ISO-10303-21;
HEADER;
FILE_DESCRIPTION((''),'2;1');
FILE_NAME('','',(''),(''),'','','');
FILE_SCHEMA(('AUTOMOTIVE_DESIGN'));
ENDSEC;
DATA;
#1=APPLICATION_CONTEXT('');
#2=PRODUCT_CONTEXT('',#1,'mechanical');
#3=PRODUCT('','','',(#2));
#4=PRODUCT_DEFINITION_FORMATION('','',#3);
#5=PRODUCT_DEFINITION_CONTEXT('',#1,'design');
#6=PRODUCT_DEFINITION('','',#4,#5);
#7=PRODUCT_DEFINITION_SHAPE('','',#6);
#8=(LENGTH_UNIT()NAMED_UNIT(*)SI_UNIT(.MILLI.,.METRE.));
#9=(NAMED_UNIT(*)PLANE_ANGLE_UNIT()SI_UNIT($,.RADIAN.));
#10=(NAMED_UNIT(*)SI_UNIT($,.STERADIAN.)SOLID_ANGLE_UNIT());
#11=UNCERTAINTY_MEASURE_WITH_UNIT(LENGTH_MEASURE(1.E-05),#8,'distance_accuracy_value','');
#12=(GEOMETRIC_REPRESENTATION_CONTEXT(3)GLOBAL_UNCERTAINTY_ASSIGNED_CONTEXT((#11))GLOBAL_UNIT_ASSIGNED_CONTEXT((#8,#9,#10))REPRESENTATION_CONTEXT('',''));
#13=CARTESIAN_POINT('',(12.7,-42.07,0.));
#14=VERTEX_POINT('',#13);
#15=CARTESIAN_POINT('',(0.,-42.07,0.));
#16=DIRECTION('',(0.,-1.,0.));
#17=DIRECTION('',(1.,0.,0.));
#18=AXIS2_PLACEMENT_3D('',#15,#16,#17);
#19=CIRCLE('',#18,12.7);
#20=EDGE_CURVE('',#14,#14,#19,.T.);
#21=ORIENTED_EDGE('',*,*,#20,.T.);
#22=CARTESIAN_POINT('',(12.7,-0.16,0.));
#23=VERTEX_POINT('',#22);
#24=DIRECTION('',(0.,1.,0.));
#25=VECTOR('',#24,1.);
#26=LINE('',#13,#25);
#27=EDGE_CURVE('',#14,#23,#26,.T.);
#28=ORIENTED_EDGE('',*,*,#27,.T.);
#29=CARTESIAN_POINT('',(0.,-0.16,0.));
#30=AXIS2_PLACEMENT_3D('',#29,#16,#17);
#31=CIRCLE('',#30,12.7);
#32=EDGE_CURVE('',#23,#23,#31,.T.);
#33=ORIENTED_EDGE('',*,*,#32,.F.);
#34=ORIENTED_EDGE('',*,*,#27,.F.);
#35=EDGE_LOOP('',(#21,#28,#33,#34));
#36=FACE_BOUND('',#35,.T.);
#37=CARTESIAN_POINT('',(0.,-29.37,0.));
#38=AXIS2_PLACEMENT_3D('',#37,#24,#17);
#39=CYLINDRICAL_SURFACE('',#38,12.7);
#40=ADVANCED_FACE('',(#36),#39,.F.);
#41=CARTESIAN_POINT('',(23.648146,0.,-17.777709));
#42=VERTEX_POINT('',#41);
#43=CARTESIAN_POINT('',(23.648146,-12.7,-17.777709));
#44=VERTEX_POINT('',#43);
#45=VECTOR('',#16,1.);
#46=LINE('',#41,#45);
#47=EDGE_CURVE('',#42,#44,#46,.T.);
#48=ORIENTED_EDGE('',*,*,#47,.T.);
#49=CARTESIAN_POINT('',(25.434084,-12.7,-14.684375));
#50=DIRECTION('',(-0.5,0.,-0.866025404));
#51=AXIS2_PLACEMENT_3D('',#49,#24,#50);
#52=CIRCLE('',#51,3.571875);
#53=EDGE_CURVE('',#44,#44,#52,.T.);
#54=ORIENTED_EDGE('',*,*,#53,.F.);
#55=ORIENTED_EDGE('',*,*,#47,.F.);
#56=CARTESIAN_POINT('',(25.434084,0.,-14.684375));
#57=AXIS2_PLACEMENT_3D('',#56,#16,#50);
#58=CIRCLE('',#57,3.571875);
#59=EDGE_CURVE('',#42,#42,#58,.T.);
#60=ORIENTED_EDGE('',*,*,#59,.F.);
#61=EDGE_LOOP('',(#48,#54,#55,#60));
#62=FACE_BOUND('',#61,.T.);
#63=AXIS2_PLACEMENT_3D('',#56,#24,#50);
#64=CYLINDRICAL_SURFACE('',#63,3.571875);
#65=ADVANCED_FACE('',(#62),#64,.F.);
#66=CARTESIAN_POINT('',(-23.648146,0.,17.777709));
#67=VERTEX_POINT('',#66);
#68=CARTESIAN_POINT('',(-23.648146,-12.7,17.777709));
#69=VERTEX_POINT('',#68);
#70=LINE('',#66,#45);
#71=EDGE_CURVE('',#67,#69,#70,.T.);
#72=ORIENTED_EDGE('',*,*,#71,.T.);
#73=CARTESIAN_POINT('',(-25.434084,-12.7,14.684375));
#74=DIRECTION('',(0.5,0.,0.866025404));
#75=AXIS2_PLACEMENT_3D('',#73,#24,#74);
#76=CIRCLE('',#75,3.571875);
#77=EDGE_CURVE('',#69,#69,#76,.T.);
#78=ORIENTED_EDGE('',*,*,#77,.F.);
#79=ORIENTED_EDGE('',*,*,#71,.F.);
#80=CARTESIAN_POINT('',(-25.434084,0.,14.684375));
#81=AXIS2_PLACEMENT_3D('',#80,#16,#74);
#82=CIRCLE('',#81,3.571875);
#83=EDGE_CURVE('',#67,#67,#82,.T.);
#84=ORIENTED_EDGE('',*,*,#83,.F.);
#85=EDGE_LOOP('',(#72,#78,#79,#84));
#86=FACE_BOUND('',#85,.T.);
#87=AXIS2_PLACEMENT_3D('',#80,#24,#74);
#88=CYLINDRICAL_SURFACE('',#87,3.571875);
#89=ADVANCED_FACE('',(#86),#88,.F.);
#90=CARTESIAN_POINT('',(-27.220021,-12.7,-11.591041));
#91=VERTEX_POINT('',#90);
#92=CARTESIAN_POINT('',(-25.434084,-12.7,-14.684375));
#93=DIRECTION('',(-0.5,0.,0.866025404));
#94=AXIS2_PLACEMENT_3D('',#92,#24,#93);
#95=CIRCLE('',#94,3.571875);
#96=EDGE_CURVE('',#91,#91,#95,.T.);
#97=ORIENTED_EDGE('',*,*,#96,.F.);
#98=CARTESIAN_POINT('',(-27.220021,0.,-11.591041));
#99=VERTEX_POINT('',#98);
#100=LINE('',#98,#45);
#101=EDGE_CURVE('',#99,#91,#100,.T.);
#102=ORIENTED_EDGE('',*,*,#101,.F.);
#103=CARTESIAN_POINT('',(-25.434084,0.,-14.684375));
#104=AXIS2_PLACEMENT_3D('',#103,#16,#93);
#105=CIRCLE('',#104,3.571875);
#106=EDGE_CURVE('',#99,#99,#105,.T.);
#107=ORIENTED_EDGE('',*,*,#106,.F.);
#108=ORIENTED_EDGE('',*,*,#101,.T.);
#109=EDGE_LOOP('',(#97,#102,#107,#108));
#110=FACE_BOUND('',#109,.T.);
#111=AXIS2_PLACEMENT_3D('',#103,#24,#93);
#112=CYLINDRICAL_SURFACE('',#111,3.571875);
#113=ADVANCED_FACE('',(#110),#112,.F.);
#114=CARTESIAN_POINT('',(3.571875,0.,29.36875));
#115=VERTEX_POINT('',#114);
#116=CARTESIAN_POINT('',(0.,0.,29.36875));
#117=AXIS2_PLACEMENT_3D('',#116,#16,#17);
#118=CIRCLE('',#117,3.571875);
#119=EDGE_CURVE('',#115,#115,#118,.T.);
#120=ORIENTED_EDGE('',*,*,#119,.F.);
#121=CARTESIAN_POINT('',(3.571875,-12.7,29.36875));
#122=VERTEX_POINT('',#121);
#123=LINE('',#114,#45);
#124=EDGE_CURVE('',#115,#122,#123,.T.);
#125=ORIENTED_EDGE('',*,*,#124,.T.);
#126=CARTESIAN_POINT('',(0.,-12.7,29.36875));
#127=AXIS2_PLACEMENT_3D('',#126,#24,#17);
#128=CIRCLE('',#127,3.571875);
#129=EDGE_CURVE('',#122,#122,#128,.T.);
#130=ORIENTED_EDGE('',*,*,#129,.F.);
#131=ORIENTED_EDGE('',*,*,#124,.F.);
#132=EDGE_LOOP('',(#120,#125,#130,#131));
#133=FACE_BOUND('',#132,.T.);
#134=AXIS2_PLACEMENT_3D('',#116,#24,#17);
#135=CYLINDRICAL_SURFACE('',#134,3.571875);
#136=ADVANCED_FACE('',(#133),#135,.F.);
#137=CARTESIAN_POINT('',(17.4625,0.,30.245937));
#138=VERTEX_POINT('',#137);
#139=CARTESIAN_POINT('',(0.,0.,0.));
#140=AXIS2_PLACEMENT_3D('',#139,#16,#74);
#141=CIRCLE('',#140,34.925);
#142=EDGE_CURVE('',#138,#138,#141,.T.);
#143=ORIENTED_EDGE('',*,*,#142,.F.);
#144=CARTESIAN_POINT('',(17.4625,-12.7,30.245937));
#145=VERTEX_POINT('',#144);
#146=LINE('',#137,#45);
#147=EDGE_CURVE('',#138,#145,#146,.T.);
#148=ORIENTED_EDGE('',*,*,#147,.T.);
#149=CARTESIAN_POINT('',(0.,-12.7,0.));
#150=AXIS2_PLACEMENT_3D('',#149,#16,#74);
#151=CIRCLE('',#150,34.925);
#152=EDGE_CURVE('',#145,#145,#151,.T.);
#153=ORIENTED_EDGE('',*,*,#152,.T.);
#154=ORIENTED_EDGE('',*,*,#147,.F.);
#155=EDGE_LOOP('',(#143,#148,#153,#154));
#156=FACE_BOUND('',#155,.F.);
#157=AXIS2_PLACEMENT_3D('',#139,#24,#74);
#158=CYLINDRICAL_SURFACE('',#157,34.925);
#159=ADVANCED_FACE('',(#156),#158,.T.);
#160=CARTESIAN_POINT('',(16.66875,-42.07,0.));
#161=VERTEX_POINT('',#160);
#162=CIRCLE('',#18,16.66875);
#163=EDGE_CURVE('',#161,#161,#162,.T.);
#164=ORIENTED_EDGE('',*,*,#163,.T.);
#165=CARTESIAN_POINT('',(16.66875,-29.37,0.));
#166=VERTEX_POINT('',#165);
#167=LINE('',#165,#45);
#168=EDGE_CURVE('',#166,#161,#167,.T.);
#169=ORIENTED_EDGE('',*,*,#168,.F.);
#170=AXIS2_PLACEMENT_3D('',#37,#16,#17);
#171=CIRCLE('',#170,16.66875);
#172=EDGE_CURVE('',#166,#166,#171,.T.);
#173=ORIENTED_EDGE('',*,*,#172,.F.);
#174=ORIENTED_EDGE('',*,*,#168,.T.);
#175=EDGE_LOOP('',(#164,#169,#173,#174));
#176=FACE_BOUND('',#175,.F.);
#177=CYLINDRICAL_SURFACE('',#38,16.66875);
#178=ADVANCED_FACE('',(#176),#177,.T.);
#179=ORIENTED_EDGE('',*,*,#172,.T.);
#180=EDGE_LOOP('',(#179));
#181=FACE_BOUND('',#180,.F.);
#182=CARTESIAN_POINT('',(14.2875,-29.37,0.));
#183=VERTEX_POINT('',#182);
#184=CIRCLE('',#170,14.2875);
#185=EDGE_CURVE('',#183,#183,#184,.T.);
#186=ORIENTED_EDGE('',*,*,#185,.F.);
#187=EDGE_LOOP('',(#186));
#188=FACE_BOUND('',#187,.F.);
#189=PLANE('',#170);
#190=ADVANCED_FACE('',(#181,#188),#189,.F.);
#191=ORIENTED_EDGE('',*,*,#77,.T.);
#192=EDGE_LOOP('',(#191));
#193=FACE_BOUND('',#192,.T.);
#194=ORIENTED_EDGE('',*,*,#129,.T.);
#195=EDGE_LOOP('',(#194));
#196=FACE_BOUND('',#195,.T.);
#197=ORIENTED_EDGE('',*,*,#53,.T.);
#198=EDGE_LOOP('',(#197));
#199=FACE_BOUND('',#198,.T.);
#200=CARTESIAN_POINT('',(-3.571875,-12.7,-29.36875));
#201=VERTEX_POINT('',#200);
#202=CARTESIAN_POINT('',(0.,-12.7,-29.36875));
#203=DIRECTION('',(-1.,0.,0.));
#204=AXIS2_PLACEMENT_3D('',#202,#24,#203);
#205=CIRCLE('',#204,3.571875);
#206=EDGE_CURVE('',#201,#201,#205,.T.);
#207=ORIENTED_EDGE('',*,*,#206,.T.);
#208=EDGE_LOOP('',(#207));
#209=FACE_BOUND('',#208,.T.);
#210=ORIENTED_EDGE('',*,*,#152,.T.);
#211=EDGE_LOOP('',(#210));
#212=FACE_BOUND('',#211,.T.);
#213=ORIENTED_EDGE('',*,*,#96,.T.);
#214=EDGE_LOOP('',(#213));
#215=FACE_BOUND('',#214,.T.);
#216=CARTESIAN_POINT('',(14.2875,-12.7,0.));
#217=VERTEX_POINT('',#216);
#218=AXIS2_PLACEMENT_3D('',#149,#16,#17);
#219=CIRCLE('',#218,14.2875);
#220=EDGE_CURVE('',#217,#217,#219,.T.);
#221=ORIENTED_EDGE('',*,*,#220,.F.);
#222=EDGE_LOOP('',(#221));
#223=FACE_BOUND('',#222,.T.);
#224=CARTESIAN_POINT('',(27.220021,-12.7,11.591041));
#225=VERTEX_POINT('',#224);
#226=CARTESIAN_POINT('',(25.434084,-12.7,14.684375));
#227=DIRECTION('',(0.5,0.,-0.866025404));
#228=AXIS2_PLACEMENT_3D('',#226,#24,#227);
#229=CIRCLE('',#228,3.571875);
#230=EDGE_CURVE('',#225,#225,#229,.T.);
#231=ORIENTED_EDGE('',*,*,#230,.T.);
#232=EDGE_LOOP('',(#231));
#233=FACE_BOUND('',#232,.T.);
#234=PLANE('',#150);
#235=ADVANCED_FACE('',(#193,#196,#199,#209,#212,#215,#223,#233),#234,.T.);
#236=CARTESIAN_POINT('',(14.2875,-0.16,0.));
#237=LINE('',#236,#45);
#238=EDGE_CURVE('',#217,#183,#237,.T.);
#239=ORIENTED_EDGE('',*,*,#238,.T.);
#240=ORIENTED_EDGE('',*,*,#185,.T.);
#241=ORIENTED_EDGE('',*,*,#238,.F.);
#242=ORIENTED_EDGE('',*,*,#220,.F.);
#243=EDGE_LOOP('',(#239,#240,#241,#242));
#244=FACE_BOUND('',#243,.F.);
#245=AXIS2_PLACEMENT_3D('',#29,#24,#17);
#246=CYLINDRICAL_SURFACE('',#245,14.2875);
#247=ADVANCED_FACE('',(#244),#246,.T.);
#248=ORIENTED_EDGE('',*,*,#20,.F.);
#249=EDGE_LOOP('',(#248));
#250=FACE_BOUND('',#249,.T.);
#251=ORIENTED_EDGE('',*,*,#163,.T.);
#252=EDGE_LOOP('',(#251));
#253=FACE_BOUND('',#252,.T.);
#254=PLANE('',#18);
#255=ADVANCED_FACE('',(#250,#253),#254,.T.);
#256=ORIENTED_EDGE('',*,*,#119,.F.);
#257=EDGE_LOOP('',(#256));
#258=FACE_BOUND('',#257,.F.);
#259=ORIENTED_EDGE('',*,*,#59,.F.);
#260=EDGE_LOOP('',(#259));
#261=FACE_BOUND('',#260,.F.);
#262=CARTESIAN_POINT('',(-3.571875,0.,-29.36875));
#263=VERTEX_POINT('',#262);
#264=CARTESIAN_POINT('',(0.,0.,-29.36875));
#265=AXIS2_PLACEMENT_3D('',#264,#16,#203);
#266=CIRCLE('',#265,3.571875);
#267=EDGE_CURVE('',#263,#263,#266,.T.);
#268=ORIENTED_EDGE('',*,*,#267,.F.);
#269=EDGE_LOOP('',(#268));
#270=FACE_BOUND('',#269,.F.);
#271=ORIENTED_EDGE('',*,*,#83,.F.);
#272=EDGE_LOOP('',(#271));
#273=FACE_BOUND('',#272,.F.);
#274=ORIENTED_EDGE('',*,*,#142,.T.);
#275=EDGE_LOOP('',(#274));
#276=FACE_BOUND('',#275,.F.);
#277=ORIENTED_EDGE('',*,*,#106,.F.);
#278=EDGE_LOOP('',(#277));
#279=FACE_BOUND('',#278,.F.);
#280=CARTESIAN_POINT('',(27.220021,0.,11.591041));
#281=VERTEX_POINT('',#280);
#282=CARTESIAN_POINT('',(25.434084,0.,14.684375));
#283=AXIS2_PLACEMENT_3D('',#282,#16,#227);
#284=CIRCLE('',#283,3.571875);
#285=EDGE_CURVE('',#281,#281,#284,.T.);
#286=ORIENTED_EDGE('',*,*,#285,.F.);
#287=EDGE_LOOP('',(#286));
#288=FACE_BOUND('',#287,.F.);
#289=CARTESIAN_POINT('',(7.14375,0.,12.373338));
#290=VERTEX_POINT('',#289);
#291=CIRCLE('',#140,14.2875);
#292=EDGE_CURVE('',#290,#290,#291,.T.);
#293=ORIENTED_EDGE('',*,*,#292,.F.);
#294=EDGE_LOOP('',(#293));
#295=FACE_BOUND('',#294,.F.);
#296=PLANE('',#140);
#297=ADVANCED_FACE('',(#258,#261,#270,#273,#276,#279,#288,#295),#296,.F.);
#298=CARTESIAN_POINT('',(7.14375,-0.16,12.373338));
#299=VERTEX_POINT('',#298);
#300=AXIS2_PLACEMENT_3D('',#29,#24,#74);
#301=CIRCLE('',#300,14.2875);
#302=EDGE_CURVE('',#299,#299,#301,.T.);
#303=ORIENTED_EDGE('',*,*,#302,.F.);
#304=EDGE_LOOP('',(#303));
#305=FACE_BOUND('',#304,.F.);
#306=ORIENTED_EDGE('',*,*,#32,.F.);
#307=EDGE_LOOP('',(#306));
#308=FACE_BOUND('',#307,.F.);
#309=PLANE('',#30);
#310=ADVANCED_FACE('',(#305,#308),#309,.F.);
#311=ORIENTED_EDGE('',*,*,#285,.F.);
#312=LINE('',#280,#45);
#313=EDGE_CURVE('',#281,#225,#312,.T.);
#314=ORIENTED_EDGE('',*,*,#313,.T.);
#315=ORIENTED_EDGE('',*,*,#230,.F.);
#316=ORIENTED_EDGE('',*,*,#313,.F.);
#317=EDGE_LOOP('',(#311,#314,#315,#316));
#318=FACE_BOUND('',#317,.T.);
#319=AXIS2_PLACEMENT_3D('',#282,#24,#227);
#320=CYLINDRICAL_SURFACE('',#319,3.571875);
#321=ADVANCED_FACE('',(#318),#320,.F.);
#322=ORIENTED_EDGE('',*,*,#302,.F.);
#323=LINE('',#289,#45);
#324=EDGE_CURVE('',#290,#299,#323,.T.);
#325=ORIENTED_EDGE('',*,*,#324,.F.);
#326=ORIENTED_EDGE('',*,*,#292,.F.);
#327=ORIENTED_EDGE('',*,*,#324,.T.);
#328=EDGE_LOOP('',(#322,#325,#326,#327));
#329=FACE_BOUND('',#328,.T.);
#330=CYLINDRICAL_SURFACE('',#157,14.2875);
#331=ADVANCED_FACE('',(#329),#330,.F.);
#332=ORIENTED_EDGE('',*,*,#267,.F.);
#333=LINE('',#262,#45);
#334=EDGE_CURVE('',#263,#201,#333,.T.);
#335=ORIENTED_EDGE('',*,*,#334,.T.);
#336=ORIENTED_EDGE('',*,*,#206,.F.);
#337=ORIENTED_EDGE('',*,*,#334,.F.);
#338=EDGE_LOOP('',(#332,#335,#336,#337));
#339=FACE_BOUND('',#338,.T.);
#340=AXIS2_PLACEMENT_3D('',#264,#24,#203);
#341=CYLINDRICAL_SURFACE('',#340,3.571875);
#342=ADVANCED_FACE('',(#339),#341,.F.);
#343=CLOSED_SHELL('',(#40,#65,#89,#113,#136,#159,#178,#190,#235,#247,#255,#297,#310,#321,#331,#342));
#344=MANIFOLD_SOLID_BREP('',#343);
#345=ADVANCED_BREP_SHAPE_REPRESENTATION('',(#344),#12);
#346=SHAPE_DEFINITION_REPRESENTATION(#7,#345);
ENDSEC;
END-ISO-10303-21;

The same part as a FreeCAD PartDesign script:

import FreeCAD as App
import Part
import Sketcher
from FreeCAD import Vector
Q = App.Units.Quantity

doc = App.newDocument("Part")
body = doc.addObject("PartDesign::Body", "Body")

sketch1 = body.newObject("Sketcher::SketchObject", "Sketch")
sketch1.AttachmentSupport = (doc.getObject("XZ_Plane"), [""])
sketch1.MapMode = "FlatFace"
sketch1.addGeometry(Part.Circle(Vector(0, 0, 0), Vector(0, 0, 1), 14), False)
sketch1.addGeometry(Part.Circle(Vector(0, 0, 0), Vector(0, 0, 1), 13), False)
sketch1.addConstraint(Sketcher.Constraint("Coincident", 0, 3, -1, 1))
sketch1.addConstraint(Sketcher.Constraint("Coincident", 1, 3, -1, 1))
sketch1.addConstraint(Sketcher.Constraint("Diameter", 1, Q("1 in")))
sketch1.addConstraint(Sketcher.Constraint("Diameter", 0, Q("1.125 in")))
pad1 = body.newObject("PartDesign::Pad", "Pad")
pad1.Profile = sketch1
pad1.Length = Q("1.15 in")
body2 = doc.addObject("PartDesign::Body", "Body001")
doc.recompute()

body.Placement = App.Placement(Vector(0, -0.16, 0), App.Rotation(Vector(0, 0, 1), 0))
boolean = body2.newObject("PartDesign::Boolean", "Boolean")
boolean.Type = "Fuse"
boolean.addObjects([body])
body3 = doc.addObject("PartDesign::Body", "Body002")

sketch2 = body3.newObject("Sketcher::SketchObject", "Sketch001")
sketch2.AttachmentSupport = (doc.getObject("XZ_Plane002"), [""])
sketch2.MapMode = "FlatFace"
sketch2.addGeometry(Part.Circle(Vector(0, 0, 0), Vector(0, 0, 1), 17), False)
sketch2.addGeometry(Part.Circle(Vector(0, 0, 0), Vector(0, 0, 1), 13), False)
sketch2.addConstraint(Sketcher.Constraint("Coincident", 0, 3, -1, 1))
sketch2.addConstraint(Sketcher.Constraint("Coincident", 1, 3, -1, 1))
sketch2.addConstraint(Sketcher.Constraint("Diameter", 1, Q("1 in")))
sketch2.addConstraint(Sketcher.Constraint("Diameter", 0, Q("1.3125 in")))
pad2 = body3.newObject("PartDesign::Pad", "Pad001")
pad2.Profile = sketch2
pad2.Length = Q("0.5 in")
body4 = doc.addObject("PartDesign::Body", "Body003")
doc.recompute()

body3.Placement = App.Placement(Vector(0, -29.37, 0), App.Rotation(Vector(0, 0, 1), 0))
boolean2 = body4.newObject("PartDesign::Boolean", "Boolean001")
boolean2.Type = "Fuse"
boolean2.addObjects([body3])
body5 = doc.addObject("PartDesign::Body", "Body004")

sketch3 = body5.newObject("Sketcher::SketchObject", "Sketch002")
sketch3.AttachmentSupport = (doc.getObject("XZ_Plane004"), [""])
sketch3.MapMode = "FlatFace"
sketch3.addGeometry(Part.Circle(Vector(0, 29.4, 0), Vector(0, 0, 1), 3.6), False)
sketch3.addConstraint(Sketcher.Constraint("PointOnObject", 0, 3, -2))
sketch3.addConstraint(Sketcher.Constraint("Diameter", 0, Q("0.28125 in")))
sketch3.addConstraint(Sketcher.Constraint("DistanceY", -1, 1, 0, 3, Q("1.15625 in")))
pad3 = body5.newObject("PartDesign::Pad", "Pad002")
pad3.Profile = sketch3
pad3.Length = 13
body6 = doc.addObject("PartDesign::Body", "Body005")

sketch4 = body6.newObject("Sketcher::SketchObject", "Sketch003")
sketch4.AttachmentSupport = (doc.getObject("XZ_Plane005"), [""])
sketch4.MapMode = "FlatFace"
sketch4.addGeometry(Part.Circle(Vector(0, 0, 0), Vector(0, 0, 1), 35), False)
sketch4.addGeometry(Part.Circle(Vector(0, 0, 0), Vector(0, 0, 1), 14), False)
sketch4.addConstraint(Sketcher.Constraint("Coincident", 0, 3, -1, 1))
sketch4.addConstraint(Sketcher.Constraint("Coincident", 1, 3, -1, 1))
sketch4.addConstraint(Sketcher.Constraint("Diameter", 0, Q("2.75 in")))
sketch4.addConstraint(Sketcher.Constraint("Diameter", 1, Q("1.125 in")))
pad4 = body6.newObject("PartDesign::Pad", "Pad003")
pad4.Profile = sketch4
pad4.Length = Q("0.5 in")
doc.recompute()

body7 = doc.addObject("PartDesign::Body", "Body006")
body7.BaseFeature = body5
boolean3 = body6.newObject("PartDesign::Boolean", "Boolean002")
boolean3.Type = "Cut"
boolean3.addObjects([body7])
doc.recompute()
body8 = doc.addObject("PartDesign::Body", "Body007")
doc.recompute()

body6.Placement = App.Placement(Vector(0, 0, 0), App.Rotation(Vector(0, 1, 0), 60))
boolean4 = body8.newObject("PartDesign::Boolean", "Boolean003")
boolean4.Type = "Fuse"
boolean4.addObjects([body6])
doc.recompute()

body9 = doc.addObject("PartDesign::Body", "Body008")
body9.BaseFeature = body5
boolean5 = body8.newObject("PartDesign::Boolean", "Boolean004")
boolean5.Type = "Cut"
boolean5.addObjects([body9])
doc.recompute()
body10 = doc.addObject("PartDesign::Body", "Body009")
doc.recompute()

body8.Placement = App.Placement(Vector(0, 0, 0), App.Rotation(Vector(0, 1, 0), 60))
boolean6 = body10.newObject("PartDesign::Boolean", "Boolean005")
boolean6.Type = "Fuse"
boolean6.addObjects([body8])
doc.recompute()

body11 = doc.addObject("PartDesign::Body", "Body010")
body11.BaseFeature = body5
boolean7 = body10.newObject("PartDesign::Boolean", "Boolean006")
boolean7.Type = "Cut"
boolean7.addObjects([body11])
doc.recompute()
body12 = doc.addObject("PartDesign::Body", "Body011")
doc.recompute()

body10.Placement = App.Placement(Vector(0, 0, 0), App.Rotation(Vector(0, 1, 0), 60))
boolean8 = body12.newObject("PartDesign::Boolean", "Boolean007")
boolean8.Type = "Fuse"
boolean8.addObjects([body10])
doc.recompute()

body13 = doc.addObject("PartDesign::Body", "Body012")
body13.BaseFeature = body5
boolean9 = body12.newObject("PartDesign::Boolean", "Boolean008")
boolean9.Type = "Cut"
boolean9.addObjects([body13])
doc.recompute()
body14 = doc.addObject("PartDesign::Body", "Body013")
doc.recompute()

body12.Placement = App.Placement(Vector(0, 0, 0), App.Rotation(Vector(0, 1, 0), 60))
boolean10 = body14.newObject("PartDesign::Boolean", "Boolean009")
boolean10.Type = "Fuse"
boolean10.addObjects([body12])
doc.recompute()

body15 = doc.addObject("PartDesign::Body", "Body014")
body15.BaseFeature = body5
boolean11 = body14.newObject("PartDesign::Boolean", "Boolean010")
boolean11.Type = "Cut"
boolean11.addObjects([body15])
doc.recompute()
body16 = doc.addObject("PartDesign::Body", "Body015")
doc.recompute()

body14.Placement = App.Placement(Vector(0, 0, 0), App.Rotation(Vector(0, 1, 0), 60))
boolean12 = body16.newObject("PartDesign::Boolean", "Boolean011")
boolean12.Type = "Fuse"
boolean12.addObjects([body14])
doc.recompute()

boolean13 = body16.newObject("PartDesign::Boolean", "Boolean012")
boolean13.Type = "Cut"
boolean13.addObjects([body5])
doc.recompute()

boolean14 = body16.newObject("PartDesign::Boolean", "Boolean013")
boolean14.Type = "Fuse"
boolean14.addObjects([body2])
doc.recompute()

boolean15 = body16.newObject("PartDesign::Boolean", "Boolean014")
boolean15.Type = "Fuse"
boolean15.addObjects([body4])

doc.recompute()
